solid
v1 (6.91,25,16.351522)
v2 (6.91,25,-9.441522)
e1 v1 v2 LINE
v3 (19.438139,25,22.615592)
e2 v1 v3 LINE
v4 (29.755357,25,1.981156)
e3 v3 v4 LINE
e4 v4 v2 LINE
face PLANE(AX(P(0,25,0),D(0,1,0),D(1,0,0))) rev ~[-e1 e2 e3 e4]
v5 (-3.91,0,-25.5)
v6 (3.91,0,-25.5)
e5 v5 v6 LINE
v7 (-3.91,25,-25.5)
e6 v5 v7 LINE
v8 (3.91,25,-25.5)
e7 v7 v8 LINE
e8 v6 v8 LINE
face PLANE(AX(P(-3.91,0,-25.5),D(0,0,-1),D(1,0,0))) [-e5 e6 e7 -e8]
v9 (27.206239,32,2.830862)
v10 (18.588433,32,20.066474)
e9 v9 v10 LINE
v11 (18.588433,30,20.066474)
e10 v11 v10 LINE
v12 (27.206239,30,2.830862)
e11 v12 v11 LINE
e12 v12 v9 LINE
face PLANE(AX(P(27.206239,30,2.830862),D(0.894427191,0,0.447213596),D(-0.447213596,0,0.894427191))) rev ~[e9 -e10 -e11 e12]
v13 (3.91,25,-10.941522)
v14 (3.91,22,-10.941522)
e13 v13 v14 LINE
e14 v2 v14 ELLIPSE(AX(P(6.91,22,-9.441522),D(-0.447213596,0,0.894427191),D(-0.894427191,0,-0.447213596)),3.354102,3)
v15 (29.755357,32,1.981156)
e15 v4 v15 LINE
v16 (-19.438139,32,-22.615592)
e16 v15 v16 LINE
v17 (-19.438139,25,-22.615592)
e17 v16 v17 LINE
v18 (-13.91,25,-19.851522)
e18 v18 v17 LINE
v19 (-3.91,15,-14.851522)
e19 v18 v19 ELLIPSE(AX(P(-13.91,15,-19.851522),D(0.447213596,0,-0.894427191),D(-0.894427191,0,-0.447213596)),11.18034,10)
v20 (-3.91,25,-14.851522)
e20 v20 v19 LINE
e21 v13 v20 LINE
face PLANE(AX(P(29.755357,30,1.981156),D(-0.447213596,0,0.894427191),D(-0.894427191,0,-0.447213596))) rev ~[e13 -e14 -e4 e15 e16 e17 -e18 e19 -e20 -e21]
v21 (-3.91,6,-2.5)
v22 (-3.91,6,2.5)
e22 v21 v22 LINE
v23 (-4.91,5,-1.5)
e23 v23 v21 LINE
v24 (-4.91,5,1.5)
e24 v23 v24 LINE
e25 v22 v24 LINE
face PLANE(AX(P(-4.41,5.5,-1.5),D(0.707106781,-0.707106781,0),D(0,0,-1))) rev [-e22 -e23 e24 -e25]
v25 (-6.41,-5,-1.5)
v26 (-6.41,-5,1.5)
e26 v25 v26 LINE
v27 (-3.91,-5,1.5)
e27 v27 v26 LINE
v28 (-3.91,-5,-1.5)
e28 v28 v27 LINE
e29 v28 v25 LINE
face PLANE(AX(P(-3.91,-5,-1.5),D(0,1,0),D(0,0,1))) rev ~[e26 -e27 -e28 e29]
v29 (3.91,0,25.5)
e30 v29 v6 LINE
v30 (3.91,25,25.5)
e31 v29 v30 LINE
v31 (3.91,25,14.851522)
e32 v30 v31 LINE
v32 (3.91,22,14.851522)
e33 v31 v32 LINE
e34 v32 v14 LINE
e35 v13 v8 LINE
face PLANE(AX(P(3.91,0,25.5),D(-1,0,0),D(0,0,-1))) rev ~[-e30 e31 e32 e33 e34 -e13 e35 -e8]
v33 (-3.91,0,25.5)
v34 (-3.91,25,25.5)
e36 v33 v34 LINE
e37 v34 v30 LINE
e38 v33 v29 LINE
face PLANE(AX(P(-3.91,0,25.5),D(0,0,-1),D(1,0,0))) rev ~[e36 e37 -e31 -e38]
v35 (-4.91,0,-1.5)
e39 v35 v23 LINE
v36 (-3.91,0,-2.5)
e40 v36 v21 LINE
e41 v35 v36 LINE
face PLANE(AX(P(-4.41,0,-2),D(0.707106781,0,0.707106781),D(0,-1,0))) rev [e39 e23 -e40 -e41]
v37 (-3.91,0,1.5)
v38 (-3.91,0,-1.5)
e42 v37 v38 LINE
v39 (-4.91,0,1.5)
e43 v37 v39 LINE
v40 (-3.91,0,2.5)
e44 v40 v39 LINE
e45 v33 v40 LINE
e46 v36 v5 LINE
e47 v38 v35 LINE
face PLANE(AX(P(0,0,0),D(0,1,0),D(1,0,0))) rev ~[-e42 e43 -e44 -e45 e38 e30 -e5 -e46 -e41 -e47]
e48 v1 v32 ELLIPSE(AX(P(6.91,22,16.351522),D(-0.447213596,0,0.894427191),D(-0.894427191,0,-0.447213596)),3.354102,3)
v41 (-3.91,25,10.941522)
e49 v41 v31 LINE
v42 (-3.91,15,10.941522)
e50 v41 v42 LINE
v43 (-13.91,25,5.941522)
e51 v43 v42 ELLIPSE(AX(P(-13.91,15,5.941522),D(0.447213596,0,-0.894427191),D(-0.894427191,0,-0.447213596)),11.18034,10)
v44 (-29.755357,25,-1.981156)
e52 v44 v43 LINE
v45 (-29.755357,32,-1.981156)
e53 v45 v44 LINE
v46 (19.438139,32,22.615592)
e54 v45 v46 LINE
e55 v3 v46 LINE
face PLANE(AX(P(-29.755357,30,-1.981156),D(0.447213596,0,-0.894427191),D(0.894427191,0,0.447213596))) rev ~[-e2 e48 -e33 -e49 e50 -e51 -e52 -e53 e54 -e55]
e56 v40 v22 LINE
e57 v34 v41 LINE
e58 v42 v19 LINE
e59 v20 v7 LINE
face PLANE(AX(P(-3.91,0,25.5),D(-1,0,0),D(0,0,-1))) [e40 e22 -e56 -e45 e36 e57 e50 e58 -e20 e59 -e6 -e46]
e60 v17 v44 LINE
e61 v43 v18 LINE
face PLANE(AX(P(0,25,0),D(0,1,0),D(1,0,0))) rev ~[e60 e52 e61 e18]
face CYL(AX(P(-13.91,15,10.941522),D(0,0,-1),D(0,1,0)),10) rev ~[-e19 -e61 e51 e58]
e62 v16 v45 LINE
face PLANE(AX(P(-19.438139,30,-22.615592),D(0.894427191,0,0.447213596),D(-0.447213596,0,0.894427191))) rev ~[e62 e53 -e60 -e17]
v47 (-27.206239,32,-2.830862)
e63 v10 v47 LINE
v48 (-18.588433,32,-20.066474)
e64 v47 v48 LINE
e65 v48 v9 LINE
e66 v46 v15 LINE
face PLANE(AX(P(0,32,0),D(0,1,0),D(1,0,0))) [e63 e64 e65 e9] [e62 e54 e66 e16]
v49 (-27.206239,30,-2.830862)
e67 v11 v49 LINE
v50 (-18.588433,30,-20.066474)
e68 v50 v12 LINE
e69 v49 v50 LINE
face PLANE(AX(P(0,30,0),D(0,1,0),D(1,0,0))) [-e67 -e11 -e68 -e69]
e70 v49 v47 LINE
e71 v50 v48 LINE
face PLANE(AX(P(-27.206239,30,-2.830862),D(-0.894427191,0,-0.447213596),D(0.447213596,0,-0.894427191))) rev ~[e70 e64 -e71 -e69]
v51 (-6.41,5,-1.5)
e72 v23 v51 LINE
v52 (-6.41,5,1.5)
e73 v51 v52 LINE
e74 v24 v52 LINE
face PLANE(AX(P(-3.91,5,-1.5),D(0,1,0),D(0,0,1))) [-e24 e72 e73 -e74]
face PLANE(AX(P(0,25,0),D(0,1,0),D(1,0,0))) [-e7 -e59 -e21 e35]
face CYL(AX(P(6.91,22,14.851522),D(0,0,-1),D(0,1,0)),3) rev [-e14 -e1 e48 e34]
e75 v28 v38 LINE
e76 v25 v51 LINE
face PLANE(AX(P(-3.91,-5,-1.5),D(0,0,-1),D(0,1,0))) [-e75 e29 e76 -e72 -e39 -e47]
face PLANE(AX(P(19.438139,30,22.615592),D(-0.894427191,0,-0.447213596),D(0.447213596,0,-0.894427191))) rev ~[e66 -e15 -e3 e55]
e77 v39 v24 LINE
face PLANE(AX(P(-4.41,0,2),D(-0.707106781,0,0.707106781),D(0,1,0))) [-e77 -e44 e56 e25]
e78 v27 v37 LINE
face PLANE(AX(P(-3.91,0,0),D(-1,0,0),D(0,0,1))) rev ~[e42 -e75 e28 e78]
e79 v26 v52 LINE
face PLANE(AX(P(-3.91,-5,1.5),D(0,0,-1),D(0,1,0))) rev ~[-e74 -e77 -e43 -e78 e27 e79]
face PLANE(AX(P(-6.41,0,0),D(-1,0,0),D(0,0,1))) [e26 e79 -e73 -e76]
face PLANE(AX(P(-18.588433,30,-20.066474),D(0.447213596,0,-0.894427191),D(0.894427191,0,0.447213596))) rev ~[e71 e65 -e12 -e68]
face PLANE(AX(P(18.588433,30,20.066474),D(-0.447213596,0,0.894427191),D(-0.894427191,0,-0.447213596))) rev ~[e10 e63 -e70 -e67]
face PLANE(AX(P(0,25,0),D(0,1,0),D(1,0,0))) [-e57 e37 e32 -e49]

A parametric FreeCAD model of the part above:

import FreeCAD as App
import Part
import Sketcher
from FreeCAD import Vector
Q = App.Units.Quantity


def edges_at(feature, points):
    """Names of the edges that pass closest to the given points."""
    edges = feature.Shape.Edges
    near = lambda p: min(range(len(edges)), key=lambda i: edges[i].distToShape(Part.Vertex(*p))[0])
    return sorted({f"Edge{near(p) + 1}" for p in points})

doc = App.newDocument("Part")
body = doc.addObject("PartDesign::Body", "Body")

# Sketch on XZ plane
sketch1 = body.newObject("Sketcher::SketchObject", "Sketch")
sketch1.AttachmentSupport = (doc.getObject("XZ_Plane"), [""])
sketch1.MapMode = "FlatFace"
sketch1.addGeometry(Part.LineSegment(Vector(-4, -26, 0), Vector(-4, 26, 0)), False)
sketch1.addGeometry(Part.LineSegment(Vector(-4, 26, 0), Vector(4, 26, 0)), False)
sketch1.addGeometry(Part.LineSegment(Vector(4, 26, 0), Vector(4, -26, 0)), False)
sketch1.addGeometry(Part.LineSegment(Vector(4, -26, 0), Vector(-4, -26, 0)), False)
sketch1.addConstraint(Sketcher.Constraint("Coincident", 0, 2, 1, 1))
sketch1.addConstraint(Sketcher.Constraint("Coincident", 1, 2, 2, 1))
sketch1.addConstraint(Sketcher.Constraint("Coincident", 2, 2, 3, 1))
sketch1.addConstraint(Sketcher.Constraint("Coincident", 3, 2, 0, 1))
sketch1.addConstraint(Sketcher.Constraint("Vertical", 0))
sketch1.addConstraint(Sketcher.Constraint("Horizontal", 1))
sketch1.addConstraint(Sketcher.Constraint("Vertical", 2))
sketch1.addConstraint(Sketcher.Constraint("Horizontal", 3))
sketch1.addConstraint(Sketcher.Constraint("Symmetric", 0, 2, 2, 2, -1, 1))
sketch1.addConstraint(Sketcher.Constraint("DistanceY", 0, 1, 0, 2, Q("51 mm")))
sketch1.addConstraint(Sketcher.Constraint("DistanceX", 1, 1, 1, 2, Q("7.82 mm")))
pad1 = body.newObject("PartDesign::Pad", "Pad")
pad1.Profile = sketch1
pad1.Length = 25
pad1.Reversed = True

# Sketch on XZ plane
sketch2 = body.newObject("Sketcher::SketchObject", "Sketch001")
sketch2.AttachmentSupport = (doc.getObject("XZ_Plane"), [""])
sketch2.MapMode = "FlatFace"
sketch2.AttachmentOffset = App.Placement(Vector(0, 0, -25), App.Rotation())
sketch2.addGeometry(Part.LineSegment(Vector(-30, -2, 0), Vector(19, 23, 0)), False)
sketch2.addGeometry(Part.LineSegment(Vector(19, 23, 0), Vector(30, 2, 0)), False)
sketch2.addGeometry(Part.LineSegment(Vector(30, 2, 0), Vector(-19, -23, 0)), False)
sketch2.addGeometry(Part.LineSegment(Vector(-19, -23, 0), Vector(-30, -2, 0)), False)
sketch2.addConstraint(Sketcher.Constraint("Coincident", 0, 2, 1, 1))
sketch2.addConstraint(Sketcher.Constraint("Coincident", 1, 2, 2, 1))
sketch2.addConstraint(Sketcher.Constraint("Coincident", 2, 2, 3, 1))
sketch2.addConstraint(Sketcher.Constraint("Coincident", 3, 2, 0, 1))
sketch2.addConstraint(Sketcher.Constraint("Symmetric", 0, 2, 2, 2, -1, 1))
sketch2.addConstraint(Sketcher.Constraint("Symmetric", 1, 2, 3, 2, -1, 1))
sketch2.addConstraint(Sketcher.Constraint("Perpendicular", 0, 1))
sketch2.addConstraint(Sketcher.Constraint("Distance", 0, Q("55 mm")))
sketch2.addConstraint(Sketcher.Constraint("Distance", 1, Q("23.07 mm")))
sketch2.addConstraint(Sketcher.Constraint("DistanceX", -1, 1, 0, 2, Q("19.438139 mm")))
pad2 = body.newObject("PartDesign::Pad", "Pad001")
pad2.Profile = sketch2
pad2.Length = 5
pad2.Reversed = True

# Sketch on XZ plane
sketch3 = body.newObject("Sketcher::SketchObject", "Sketch002")
sketch3.AttachmentSupport = (doc.getObject("XZ_Plane"), [""])
sketch3.MapMode = "FlatFace"
sketch3.AttachmentOffset = App.Placement(Vector(0, 0, -30), App.Rotation())
sketch3.addGeometry(Part.LineSegment(Vector(-30, -2, 0), Vector(19, 23, 0)), False)
sketch3.addGeometry(Part.LineSegment(Vector(19, 23, 0), Vector(30, 2, 0)), False)
sketch3.addGeometry(Part.LineSegment(Vector(30, 2, 0), Vector(-19, -23, 0)), False)
sketch3.addGeometry(Part.LineSegment(Vector(-19, -23, 0), Vector(-30, -2, 0)), False)
sketch3.addGeometry(Part.LineSegment(Vector(27, 3, 0), Vector(19, 20, 0)), False)
sketch3.addGeometry(Part.LineSegment(Vector(19, 20, 0), Vector(-27, -3, 0)), False)
sketch3.addGeometry(Part.LineSegment(Vector(-27, -3, 0), Vector(-19, -20, 0)), False)
sketch3.addGeometry(Part.LineSegment(Vector(-19, -20, 0), Vector(27, 3, 0)), False)
sketch3.addConstraint(Sketcher.Constraint("Coincident", 0, 2, 1, 1))
sketch3.addConstraint(Sketcher.Constraint("Coincident", 1, 2, 2, 1))
sketch3.addConstraint(Sketcher.Constraint("Coincident", 2, 2, 3, 1))
sketch3.addConstraint(Sketcher.Constraint("Coincident", 3, 2, 0, 1))
sketch3.addConstraint(Sketcher.Constraint("Coincident", 4, 2, 5, 1))
sketch3.addConstraint(Sketcher.Constraint("Coincident", 5, 2, 6, 1))
sketch3.addConstraint(Sketcher.Constraint("Coincident", 6, 2, 7, 1))
sketch3.addConstraint(Sketcher.Constraint("Coincident", 7, 2, 4, 1))
sketch3.addConstraint(Sketcher.Constraint("Symmetric", 0, 2, 2, 2, -1, 1))
sketch3.addConstraint(Sketcher.Constraint("Symmetric", 1, 2, 3, 2, -1, 1))
sketch3.addConstraint(Sketcher.Constraint("Symmetric", 4, 2, 6, 2, -1, 1))
sketch3.addConstraint(Sketcher.Constraint("Symmetric", 5, 2, 7, 2, -1, 1))
sketch3.addConstraint(Sketcher.Constraint("Perpendicular", 0, 1))
sketch3.addConstraint(Sketcher.Constraint("Parallel", 3, 4))
sketch3.addConstraint(Sketcher.Constraint("Perpendicular", 4, 5))
sketch3.addConstraint(Sketcher.Constraint("Distance", 0, Q("55 mm")))
sketch3.addConstraint(Sketcher.Constraint("Distance", 5, Q("51.2 mm")))
sketch3.addConstraint(Sketcher.Constraint("Distance", 1, Q("23.07 mm")))
sketch3.addConstraint(Sketcher.Constraint("Distance", 4, Q("19.27 mm")))
sketch3.addConstraint(Sketcher.Constraint("DistanceX", 5, 2, 2, 2, Q("7.7681 mm")))
pad3 = body.newObject("PartDesign::Pad", "Pad002")
pad3.Profile = sketch3
pad3.Length = 2
pad3.Reversed = True
doc.recompute()

fillet = body.newObject("PartDesign::Fillet", "Fillet")
fillet.Base = (pad3, edges_at(pad3, [(-3.91, 25, -1.955)]))
fillet.Radius = 10
doc.recompute()

fillet2 = body.newObject("PartDesign::Fillet", "Fillet001")
fillet2.Base = (fillet, edges_at(fillet, [(3.91, 25, 1.955)]))
fillet2.Radius = 3

# Sketch on YZ plane
sketch4 = body.newObject("Sketcher::SketchObject", "Sketch003")
sketch4.AttachmentSupport = (doc.getObject("YZ_Plane"), [""])
sketch4.MapMode = "FlatFace"
sketch4.AttachmentOffset = App.Placement(Vector(0, 0, -3.91), App.Rotation())
sketch4.addGeometry(Part.LineSegment(Vector(5, -1.5, 0), Vector(-5, -1.5, 0)), False)
sketch4.addGeometry(Part.LineSegment(Vector(-5, -1.5, 0), Vector(-5, 1.5, 0)), False)
sketch4.addGeometry(Part.LineSegment(Vector(-5, 1.5, 0), Vector(5, 1.5, 0)), False)
sketch4.addGeometry(Part.LineSegment(Vector(5, 1.5, 0), Vector(5, -1.5, 0)), False)
sketch4.addConstraint(Sketcher.Constraint("Coincident", 0, 2, 1, 1))
sketch4.addConstraint(Sketcher.Constraint("Coincident", 1, 2, 2, 1))
sketch4.addConstraint(Sketcher.Constraint("Coincident", 2, 2, 3, 1))
sketch4.addConstraint(Sketcher.Constraint("Coincident", 3, 2, 0, 1))
sketch4.addConstraint(Sketcher.Constraint("Horizontal", 0))
sketch4.addConstraint(Sketcher.Constraint("Vertical", 1))
sketch4.addConstraint(Sketcher.Constraint("Horizontal", 2))
sketch4.addConstraint(Sketcher.Constraint("Vertical", 3))
sketch4.addConstraint(Sketcher.Constraint("Symmetric", 0, 2, 2, 2, -1, 1))
sketch4.addConstraint(Sketcher.Constraint("DistanceX", 0, 2, 0, 1, Q("10 mm")))
sketch4.addConstraint(Sketcher.Constraint("DistanceY", 1, 1, 1, 2, Q("3 mm")))
pad4 = body.newObject("PartDesign::Pad", "Pad003")
pad4.Profile = sketch4
pad4.Length = 2.5
pad4.Reversed = True
doc.recompute()

chamfer = body.newObject("PartDesign::Chamfer", "Chamfer")
chamfer.Base = (pad4, edges_at(pad4, [(-3.91, 2.5, 1.5), (-3.91, 5, 0), (-3.91, 2.5, -1.5)]))
chamfer.Size = 1

doc.recompute()
